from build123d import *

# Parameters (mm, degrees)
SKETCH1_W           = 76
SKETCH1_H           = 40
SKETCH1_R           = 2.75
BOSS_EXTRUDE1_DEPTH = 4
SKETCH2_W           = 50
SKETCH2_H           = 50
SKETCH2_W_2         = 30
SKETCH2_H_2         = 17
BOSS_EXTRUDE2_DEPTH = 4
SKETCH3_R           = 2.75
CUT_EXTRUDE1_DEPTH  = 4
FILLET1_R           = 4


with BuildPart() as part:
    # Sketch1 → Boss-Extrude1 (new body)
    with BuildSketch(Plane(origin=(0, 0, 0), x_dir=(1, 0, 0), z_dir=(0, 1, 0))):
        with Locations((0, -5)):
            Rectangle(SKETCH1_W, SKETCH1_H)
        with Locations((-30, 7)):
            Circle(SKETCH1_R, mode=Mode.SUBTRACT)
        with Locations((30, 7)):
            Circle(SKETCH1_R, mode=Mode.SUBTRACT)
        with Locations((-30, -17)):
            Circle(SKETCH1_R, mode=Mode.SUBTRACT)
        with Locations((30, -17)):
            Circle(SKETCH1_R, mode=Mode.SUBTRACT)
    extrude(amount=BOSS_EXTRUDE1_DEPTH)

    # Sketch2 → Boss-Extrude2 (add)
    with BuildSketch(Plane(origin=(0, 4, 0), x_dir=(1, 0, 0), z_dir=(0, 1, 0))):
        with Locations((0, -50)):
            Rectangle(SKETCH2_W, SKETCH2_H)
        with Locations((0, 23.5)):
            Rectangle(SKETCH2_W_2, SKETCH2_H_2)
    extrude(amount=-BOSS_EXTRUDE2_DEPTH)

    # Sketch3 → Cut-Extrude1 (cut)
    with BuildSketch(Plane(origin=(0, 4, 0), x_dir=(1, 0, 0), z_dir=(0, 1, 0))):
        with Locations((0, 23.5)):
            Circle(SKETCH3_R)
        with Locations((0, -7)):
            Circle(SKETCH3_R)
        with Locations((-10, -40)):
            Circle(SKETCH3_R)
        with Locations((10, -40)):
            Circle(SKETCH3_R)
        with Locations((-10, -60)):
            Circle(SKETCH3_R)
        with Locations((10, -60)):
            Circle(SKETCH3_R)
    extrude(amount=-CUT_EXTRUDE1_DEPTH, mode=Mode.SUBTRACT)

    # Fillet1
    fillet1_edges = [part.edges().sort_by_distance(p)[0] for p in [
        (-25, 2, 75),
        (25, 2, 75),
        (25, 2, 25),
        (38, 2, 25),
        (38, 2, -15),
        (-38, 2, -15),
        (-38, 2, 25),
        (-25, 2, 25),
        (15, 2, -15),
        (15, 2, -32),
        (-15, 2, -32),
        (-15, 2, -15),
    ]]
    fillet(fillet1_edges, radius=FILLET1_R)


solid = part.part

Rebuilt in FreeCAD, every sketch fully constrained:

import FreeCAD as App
import Part
import Sketcher
from FreeCAD import Vector


def edges_at(feature, points):
    """Names of the edges that pass closest to the given points."""
    edges = feature.Shape.Edges
    near = lambda p: min(range(len(edges)), key=lambda i: edges[i].distToShape(Part.Vertex(*p))[0])
    return sorted({f"Edge{near(p) + 1}" for p in points})


def add_polygon(sketch, points):
    """Adds a closed chain of lines whose ends are joined by coincident constraints."""
    first, n = sketch.GeometryCount, len(points)
    for a, b in zip(points, points[1:] + points[:1]):
        sketch.addGeometry(Part.LineSegment(App.Vector(*a, 0), App.Vector(*b, 0)), False)
    for i in range(n):
        sketch.addConstraint(Sketcher.Constraint("Coincident", first + i, 2, first + (i + 1) % n, 1))

doc = App.newDocument("Part")
params = doc.addObject("Spreadsheet::Sheet", "Params")
for row, (alias, value) in enumerate([
    ("sketch1_diameter", "5.5 mm"),
    ("sketch1_width", "76 mm"),
    ("sketch1_height", "40 mm"),
    ("pad1_length", "4 mm"),
    ("sketch2_width", "50 mm"),
    ("sketch2_width2", "30 mm"),
    ("sketch2_height", "17 mm"),
    ("pad2_length", "4 mm"),
    ("sketch3_diameter", "5.5 mm"),
    ("pocket1_length", "4 mm"),
    ("fillet_radius", "4 mm"),
], start=1):
    params.set(f"A{row}", alias)
    params.set(f"B{row}", "=" + value)
    params.setAlias(f"B{row}", alias)

body = doc.addObject("PartDesign::Body", "Body")

sketch1 = body.newObject("Sketcher::SketchObject", "Sketch")
sketch1.AttachmentSupport = (doc.getObject("XZ_Plane"), [""])
sketch1.MapMode = "FlatFace"
add_polygon(sketch1, [(-38, -15), (-38, 25), (38, 25), (38, -15)])
sketch1.addGeometry(Part.Circle(Vector(-30, 17, 0), Vector(0, 0, 1), 2.8), False)
sketch1.addGeometry(Part.Circle(Vector(30, 17, 0), Vector(0, 0, 1), 2.8), False)
sketch1.addGeometry(Part.Circle(Vector(-30, -7, 0), Vector(0, 0, 1), 2.8), False)
sketch1.addGeometry(Part.Circle(Vector(30, -7, 0), Vector(0, 0, 1), 2.8), False)
sketch1.addConstraint(Sketcher.Constraint("Vertical", 0))
sketch1.addConstraint(Sketcher.Constraint("Horizontal", 1))
sketch1.addConstraint(Sketcher.Constraint("Vertical", 2))
sketch1.addConstraint(Sketcher.Constraint("Horizontal", 3))
sketch1.addConstraint(Sketcher.Constraint("Equal", 4, 5))
sketch1.addConstraint(Sketcher.Constraint("Equal", 5, 6))
sketch1.addConstraint(Sketcher.Constraint("Equal", 6, 7))
sketch1.addConstraint(Sketcher.Constraint("Symmetric", 4, 3, 5, 3, -2))
sketch1.addConstraint(Sketcher.Constraint("Symmetric", 6, 3, 7, 3, -2))
sketch1.addConstraint(Sketcher.Constraint("Vertical", 4, 3, 6, 3))
sketch1.addConstraint(Sketcher.Constraint("Diameter", 4, 5.5))
sketch1.addConstraint(Sketcher.Constraint("DistanceX", 1, 1, 1, 2, 76.0))
sketch1.addConstraint(Sketcher.Constraint("DistanceY", 0, 1, 0, 2, 40.0))
sketch1.addConstraint(Sketcher.Constraint("DistanceX", 4, 3, -1, 1, 30.0))
sketch1.addConstraint(Sketcher.Constraint("DistanceY", -1, 1, 4, 3, 17.0))
sketch1.addConstraint(Sketcher.Constraint("DistanceY", 6, 3, -1, 1, 7.0))
sketch1.addConstraint(Sketcher.Constraint("DistanceX", 0, 2, -1, 1, 38.0))
sketch1.addConstraint(Sketcher.Constraint("DistanceY", -1, 1, 0, 2, 25.0))
sketch1.setExpression("Constraints[14]", "Params.sketch1_diameter")
sketch1.setExpression("Constraints[15]", "Params.sketch1_width")
sketch1.setExpression("Constraints[16]", "Params.sketch1_height")
pad1 = body.newObject("PartDesign::Pad", "Pad")
pad1.Profile = sketch1
pad1.setExpression("Length", "Params.pad1_length")
pad1.Reversed = True

sketch2 = body.newObject("Sketcher::SketchObject", "Sketch001")
sketch2.AttachmentSupport = (doc.getObject("XZ_Plane"), [""])
sketch2.MapMode = "FlatFace"
sketch2.AttachmentOffset = App.Placement(Vector(0, 0, -4), App.Rotation())
add_polygon(sketch2, [(-25, 25), (-25, 75), (25, 75), (25, 25)])
add_polygon(sketch2, [(-15, -32), (-15, -15), (15, -15), (15, -32)])
sketch2.addConstraint(Sketcher.Constraint("Vertical", 0))
sketch2.addConstraint(Sketcher.Constraint("Horizontal", 1))
sketch2.addConstraint(Sketcher.Constraint("Vertical", 2))
sketch2.addConstraint(Sketcher.Constraint("Horizontal", 3))
sketch2.addConstraint(Sketcher.Constraint("Vertical", 4))
sketch2.addConstraint(Sketcher.Constraint("Horizontal", 5))
sketch2.addConstraint(Sketcher.Constraint("Vertical", 6))
sketch2.addConstraint(Sketcher.Constraint("Horizontal", 7))
sketch2.addConstraint(Sketcher.Constraint("Equal", 3, 0))
sketch2.addConstraint(Sketcher.Constraint("DistanceX", 1, 1, 1, 2, 50.0))
sketch2.addConstraint(Sketcher.Constraint("DistanceX", 5, 1, 5, 2, 30.0))
sketch2.addConstraint(Sketcher.Constraint("DistanceY", 4, 1, 4, 2, 17.0))
sketch2.addConstraint(Sketcher.Constraint("DistanceX", 0, 2, -1, 1, 25.0))
sketch2.addConstraint(Sketcher.Constraint("DistanceY", -1, 1, 0, 2, 75.0))
sketch2.addConstraint(Sketcher.Constraint("DistanceX", 4, 2, -1, 1, 15.0))
sketch2.addConstraint(Sketcher.Constraint("DistanceY", 4, 2, -1, 1, 15.0))
sketch2.setExpression("Constraints[17]", "Params.sketch2_width")
sketch2.setExpression("Constraints[18]", "Params.sketch2_width2")
sketch2.setExpression("Constraints[19]", "Params.sketch2_height")
pad2 = body.newObject("PartDesign::Pad", "Pad001")
pad2.Profile = sketch2
pad2.setExpression("Length", "Params.pad2_length")

sketch3 = body.newObject("Sketcher::SketchObject", "Sketch002")
sketch3.AttachmentSupport = (doc.getObject("XZ_Plane"), [""])
sketch3.MapMode = "FlatFace"
sketch3.AttachmentOffset = App.Placement(Vector(0, 0, -4), App.Rotation())
sketch3.addGeometry(Part.Circle(Vector(0, -23.5, 0), Vector(0, 0, 1), 2.8), False)
sketch3.addGeometry(Part.Circle(Vector(0, 7, 0), Vector(0, 0, 1), 2.8), False)
sketch3.addGeometry(Part.Circle(Vector(-10, 40, 0), Vector(0, 0, 1), 2.8), False)
sketch3.addGeometry(Part.Circle(Vector(10, 40, 0), Vector(0, 0, 1), 2.8), False)
sketch3.addGeometry(Part.Circle(Vector(-10, 60, 0), Vector(0, 0, 1), 2.8), False)
sketch3.addGeometry(Part.Circle(Vector(10, 60, 0), Vector(0, 0, 1), 2.8), False)
sketch3.addConstraint(Sketcher.Constraint("Equal", 0, 1))
sketch3.addConstraint(Sketcher.Constraint("Equal", 1, 2))
sketch3.addConstraint(Sketcher.Constraint("Equal", 2, 3))
sketch3.addConstraint(Sketcher.Constraint("Equal", 3, 4))
sketch3.addConstraint(Sketcher.Constraint("Equal", 4, 5))
sketch3.addConstraint(Sketcher.Constraint("Symmetric", 2, 3, 3, 3, -2))
sketch3.addConstraint(Sketcher.Constraint("Symmetric", 4, 3, 5, 3, -2))
sketch3.addConstraint(Sketcher.Constraint("PointOnObject", 0, 3, -2))
sketch3.addConstraint(Sketcher.Constraint("PointOnObject", 1, 3, -2))
sketch3.addConstraint(Sketcher.Constraint("Vertical", 2, 3, 4, 3))
sketch3.addConstraint(Sketcher.Constraint("Diameter", 0, 5.5))
sketch3.addConstraint(Sketcher.Constraint("DistanceY", -1, 1, 1, 3, 7.0))
sketch3.addConstraint(Sketcher.Constraint("DistanceX", 2, 3, -1, 1, 10.0))
sketch3.addConstraint(Sketcher.Constraint("DistanceY", -1, 1, 2, 3, 40.0))
sketch3.addConstraint(Sketcher.Constraint("DistanceY", -1, 1, 4, 3, 60.0))
sketch3.addConstraint(Sketcher.Constraint("DistanceY", 0, 3, -1, 1, 23.5))
sketch3.setExpression("Constraints[10]", "Params.sketch3_diameter")
pocket1 = body.newObject("PartDesign::Pocket", "Pocket")
pocket1.Profile = sketch3
pocket1.setExpression("Length", "Params.pocket1_length")
pocket1.Reversed = True
doc.recompute()

fillet = body.newObject("PartDesign::Fillet", "Fillet")
fillet.Base = (pocket1, edges_at(pocket1, [
    (-25, 2, 75),
    (25, 2, 75),
    (25, 2, 25),
    (38, 2, 25),
    (38, 2, -15),
    (-38, 2, -15),
    (-38, 2, 25),
    (-25, 2, 25),
    (15, 2, -15),
    (15, 2, -32),
    (-15, 2, -32),
    (-15, 2, -15),
]))
fillet.setExpression("Radius", "Params.fillet_radius")

doc.recompute()
